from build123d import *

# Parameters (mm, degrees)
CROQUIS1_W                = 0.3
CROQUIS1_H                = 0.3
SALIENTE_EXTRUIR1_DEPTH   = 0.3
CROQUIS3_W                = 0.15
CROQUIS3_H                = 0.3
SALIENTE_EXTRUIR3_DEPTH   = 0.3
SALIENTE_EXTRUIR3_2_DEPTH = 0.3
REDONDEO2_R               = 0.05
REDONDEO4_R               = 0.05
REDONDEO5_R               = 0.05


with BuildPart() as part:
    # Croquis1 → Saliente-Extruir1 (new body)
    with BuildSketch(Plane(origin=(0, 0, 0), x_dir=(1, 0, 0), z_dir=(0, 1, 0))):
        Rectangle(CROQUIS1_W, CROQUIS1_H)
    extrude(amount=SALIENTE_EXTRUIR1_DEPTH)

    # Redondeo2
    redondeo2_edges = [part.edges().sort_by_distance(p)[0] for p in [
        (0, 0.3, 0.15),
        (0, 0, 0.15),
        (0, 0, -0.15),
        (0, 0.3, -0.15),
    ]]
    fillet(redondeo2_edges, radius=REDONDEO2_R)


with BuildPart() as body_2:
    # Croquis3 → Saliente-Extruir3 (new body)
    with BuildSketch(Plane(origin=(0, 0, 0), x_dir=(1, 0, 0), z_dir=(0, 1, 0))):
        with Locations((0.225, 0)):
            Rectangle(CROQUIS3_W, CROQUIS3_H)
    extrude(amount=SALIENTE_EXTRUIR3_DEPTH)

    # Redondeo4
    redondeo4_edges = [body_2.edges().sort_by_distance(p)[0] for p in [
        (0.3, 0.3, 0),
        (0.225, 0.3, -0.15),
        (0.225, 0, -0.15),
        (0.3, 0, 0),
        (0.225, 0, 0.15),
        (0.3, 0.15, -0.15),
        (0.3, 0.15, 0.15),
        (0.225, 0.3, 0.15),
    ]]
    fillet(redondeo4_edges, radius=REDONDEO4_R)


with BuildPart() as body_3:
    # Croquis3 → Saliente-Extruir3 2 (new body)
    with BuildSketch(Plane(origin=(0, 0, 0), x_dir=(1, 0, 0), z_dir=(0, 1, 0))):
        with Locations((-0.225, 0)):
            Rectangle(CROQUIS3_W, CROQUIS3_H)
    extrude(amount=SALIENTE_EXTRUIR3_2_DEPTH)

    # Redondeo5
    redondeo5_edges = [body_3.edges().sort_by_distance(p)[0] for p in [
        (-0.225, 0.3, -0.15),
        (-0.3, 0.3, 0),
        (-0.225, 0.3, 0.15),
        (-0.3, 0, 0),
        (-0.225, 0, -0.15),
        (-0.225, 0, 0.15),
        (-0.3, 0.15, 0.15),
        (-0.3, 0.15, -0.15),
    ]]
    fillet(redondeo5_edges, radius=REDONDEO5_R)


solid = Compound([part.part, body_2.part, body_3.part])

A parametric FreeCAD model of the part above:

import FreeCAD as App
import Part
import Sketcher
Q = App.Units.Quantity


def edges_at(feature, points):
    """Names of the edges that pass closest to the given points."""
    edges = feature.Shape.Edges
    near = lambda p: min(range(len(edges)), key=lambda i: edges[i].distToShape(Part.Vertex(*p))[0])
    return sorted({f"Edge{near(p) + 1}" for p in points})


def add_polygon(sketch, points):
    """Adds a closed chain of lines whose ends are joined by coincident constraints."""
    first, n = sketch.GeometryCount, len(points)
    for a, b in zip(points, points[1:] + points[:1]):
        sketch.addGeometry(Part.LineSegment(App.Vector(*a, 0), App.Vector(*b, 0)), False)
    for i in range(n):
        sketch.addConstraint(Sketcher.Constraint("Coincident", first + i, 2, first + (i + 1) % n, 1))

doc = App.newDocument("Part")
body = doc.addObject("PartDesign::Body", "Body")

# Sketch on XZ plane
sketch1 = body.newObject("Sketcher::SketchObject", "Sketch")
sketch1.AttachmentSupport = (doc.getObject("XZ_Plane"), [""])
sketch1.MapMode = "FlatFace"
add_polygon(sketch1, [(-0.15, -0.15), (-0.15, 0.15), (0.15, 0.15), (0.15, -0.15)])  # lines 0-3
sketch1.addConstraint([
    Sketcher.Constraint("Vertical", 0),
    Sketcher.Constraint("Horizontal", 1),
    Sketcher.Constraint("Vertical", 2),
    Sketcher.Constraint("Horizontal", 3),
    Sketcher.Constraint("Symmetric", 0, 2, 2, 2, -1, 1),
    Sketcher.Constraint("Equal", 3, 0),
    Sketcher.Constraint("DistanceX", 1, 1, 1, 2, Q("0.3 mm")),
])
pad1 = body.newObject("PartDesign::Pad", "Pad")
pad1.Profile = sketch1
pad1.Length = 0.3
pad1.Reversed = True
doc.recompute()

fillet = body.newObject("PartDesign::Fillet", "Fillet")
fillet.Base = (pad1, edges_at(pad1, [
    (0, 0.3, 0.15),
    (0, 0, 0.15),
    (0, 0, -0.15),
    (0, 0.3, -0.15),
]))
fillet.Radius = 0.05
body2 = doc.addObject("PartDesign::Body", "Body001")

# Sketch on XZ plane
sketch2 = body2.newObject("Sketcher::SketchObject", "Sketch001")
sketch2.AttachmentSupport = (doc.getObject("XZ_Plane001"), [""])
sketch2.MapMode = "FlatFace"
add_polygon(sketch2, [(0.15, -0.15), (0.15, 0.15), (0.3, 0.15), (0.3, -0.15)])  # lines 0-3
sketch2.addConstraint([
    Sketcher.Constraint("Vertical", 0),
    Sketcher.Constraint("Horizontal", 1),
    Sketcher.Constraint("Vertical", 2),
    Sketcher.Constraint("Horizontal", 3),
    Sketcher.Constraint("DistanceY", 0, 1, 0, 2, Q("0.3 mm")),
    Sketcher.Constraint("DistanceX", 1, 1, 1, 2, Q("0.15 mm")),
    Sketcher.Constraint("DistanceX", -1, 1, 1, 2, Q("0.3 mm")),
    Sketcher.Constraint("DistanceY", -1, 1, 0, 2, Q("0.15 mm")),
])
pad2 = body2.newObject("PartDesign::Pad", "Pad001")
pad2.Profile = sketch2
pad2.Length = 0.3
pad2.Reversed = True
doc.recompute()

fillet2 = body2.newObject("PartDesign::Fillet", "Fillet001")
fillet2.Base = (pad2, edges_at(pad2, [
    (0.3, 0.3, 0),
    (0.225, 0.3, -0.15),
    (0.225, 0, -0.15),
    (0.3, 0, 0),
    (0.225, 0, 0.15),
    (0.3, 0.15, -0.15),
    (0.3, 0.15, 0.15),
    (0.225, 0.3, 0.15),
]))
fillet2.Radius = 0.05
body3 = doc.addObject("PartDesign::Body", "Body002")

# Sketch on XZ plane
sketch3 = body3.newObject("Sketcher::SketchObject", "Sketch002")
sketch3.AttachmentSupport = (doc.getObject("XZ_Plane002"), [""])
sketch3.MapMode = "FlatFace"
add_polygon(sketch3, [(-0.3, -0.15), (-0.3, 0.15), (-0.15, 0.15), (-0.15, -0.15)])  # lines 0-3
sketch3.addConstraint([
    Sketcher.Constraint("Vertical", 0),
    Sketcher.Constraint("Horizontal", 1),
    Sketcher.Constraint("Vertical", 2),
    Sketcher.Constraint("Horizontal", 3),
    Sketcher.Constraint("DistanceY", 0, 1, 0, 2, Q("0.3 mm")),
    Sketcher.Constraint("DistanceX", 1, 1, 1, 2, Q("0.15 mm")),
    Sketcher.Constraint("DistanceX", 0, 2, -1, 1, Q("0.3 mm")),
    Sketcher.Constraint("DistanceY", -1, 1, 0, 2, Q("0.15 mm")),
])
pad3 = body3.newObject("PartDesign::Pad", "Pad002")
pad3.Profile = sketch3
pad3.Length = 0.3
pad3.Reversed = True
doc.recompute()

fillet3 = body3.newObject("PartDesign::Fillet", "Fillet002")
fillet3.Base = (pad3, edges_at(pad3, [
    (-0.225, 0.3, -0.15),
    (-0.3, 0.3, 0),
    (-0.225, 0.3, 0.15),
    (-0.3, 0, 0),
    (-0.225, 0, -0.15),
    (-0.225, 0, 0.15),
    (-0.3, 0.15, 0.15),
    (-0.3, 0.15, -0.15),
]))
fillet3.Radius = 0.05

doc.recompute()
